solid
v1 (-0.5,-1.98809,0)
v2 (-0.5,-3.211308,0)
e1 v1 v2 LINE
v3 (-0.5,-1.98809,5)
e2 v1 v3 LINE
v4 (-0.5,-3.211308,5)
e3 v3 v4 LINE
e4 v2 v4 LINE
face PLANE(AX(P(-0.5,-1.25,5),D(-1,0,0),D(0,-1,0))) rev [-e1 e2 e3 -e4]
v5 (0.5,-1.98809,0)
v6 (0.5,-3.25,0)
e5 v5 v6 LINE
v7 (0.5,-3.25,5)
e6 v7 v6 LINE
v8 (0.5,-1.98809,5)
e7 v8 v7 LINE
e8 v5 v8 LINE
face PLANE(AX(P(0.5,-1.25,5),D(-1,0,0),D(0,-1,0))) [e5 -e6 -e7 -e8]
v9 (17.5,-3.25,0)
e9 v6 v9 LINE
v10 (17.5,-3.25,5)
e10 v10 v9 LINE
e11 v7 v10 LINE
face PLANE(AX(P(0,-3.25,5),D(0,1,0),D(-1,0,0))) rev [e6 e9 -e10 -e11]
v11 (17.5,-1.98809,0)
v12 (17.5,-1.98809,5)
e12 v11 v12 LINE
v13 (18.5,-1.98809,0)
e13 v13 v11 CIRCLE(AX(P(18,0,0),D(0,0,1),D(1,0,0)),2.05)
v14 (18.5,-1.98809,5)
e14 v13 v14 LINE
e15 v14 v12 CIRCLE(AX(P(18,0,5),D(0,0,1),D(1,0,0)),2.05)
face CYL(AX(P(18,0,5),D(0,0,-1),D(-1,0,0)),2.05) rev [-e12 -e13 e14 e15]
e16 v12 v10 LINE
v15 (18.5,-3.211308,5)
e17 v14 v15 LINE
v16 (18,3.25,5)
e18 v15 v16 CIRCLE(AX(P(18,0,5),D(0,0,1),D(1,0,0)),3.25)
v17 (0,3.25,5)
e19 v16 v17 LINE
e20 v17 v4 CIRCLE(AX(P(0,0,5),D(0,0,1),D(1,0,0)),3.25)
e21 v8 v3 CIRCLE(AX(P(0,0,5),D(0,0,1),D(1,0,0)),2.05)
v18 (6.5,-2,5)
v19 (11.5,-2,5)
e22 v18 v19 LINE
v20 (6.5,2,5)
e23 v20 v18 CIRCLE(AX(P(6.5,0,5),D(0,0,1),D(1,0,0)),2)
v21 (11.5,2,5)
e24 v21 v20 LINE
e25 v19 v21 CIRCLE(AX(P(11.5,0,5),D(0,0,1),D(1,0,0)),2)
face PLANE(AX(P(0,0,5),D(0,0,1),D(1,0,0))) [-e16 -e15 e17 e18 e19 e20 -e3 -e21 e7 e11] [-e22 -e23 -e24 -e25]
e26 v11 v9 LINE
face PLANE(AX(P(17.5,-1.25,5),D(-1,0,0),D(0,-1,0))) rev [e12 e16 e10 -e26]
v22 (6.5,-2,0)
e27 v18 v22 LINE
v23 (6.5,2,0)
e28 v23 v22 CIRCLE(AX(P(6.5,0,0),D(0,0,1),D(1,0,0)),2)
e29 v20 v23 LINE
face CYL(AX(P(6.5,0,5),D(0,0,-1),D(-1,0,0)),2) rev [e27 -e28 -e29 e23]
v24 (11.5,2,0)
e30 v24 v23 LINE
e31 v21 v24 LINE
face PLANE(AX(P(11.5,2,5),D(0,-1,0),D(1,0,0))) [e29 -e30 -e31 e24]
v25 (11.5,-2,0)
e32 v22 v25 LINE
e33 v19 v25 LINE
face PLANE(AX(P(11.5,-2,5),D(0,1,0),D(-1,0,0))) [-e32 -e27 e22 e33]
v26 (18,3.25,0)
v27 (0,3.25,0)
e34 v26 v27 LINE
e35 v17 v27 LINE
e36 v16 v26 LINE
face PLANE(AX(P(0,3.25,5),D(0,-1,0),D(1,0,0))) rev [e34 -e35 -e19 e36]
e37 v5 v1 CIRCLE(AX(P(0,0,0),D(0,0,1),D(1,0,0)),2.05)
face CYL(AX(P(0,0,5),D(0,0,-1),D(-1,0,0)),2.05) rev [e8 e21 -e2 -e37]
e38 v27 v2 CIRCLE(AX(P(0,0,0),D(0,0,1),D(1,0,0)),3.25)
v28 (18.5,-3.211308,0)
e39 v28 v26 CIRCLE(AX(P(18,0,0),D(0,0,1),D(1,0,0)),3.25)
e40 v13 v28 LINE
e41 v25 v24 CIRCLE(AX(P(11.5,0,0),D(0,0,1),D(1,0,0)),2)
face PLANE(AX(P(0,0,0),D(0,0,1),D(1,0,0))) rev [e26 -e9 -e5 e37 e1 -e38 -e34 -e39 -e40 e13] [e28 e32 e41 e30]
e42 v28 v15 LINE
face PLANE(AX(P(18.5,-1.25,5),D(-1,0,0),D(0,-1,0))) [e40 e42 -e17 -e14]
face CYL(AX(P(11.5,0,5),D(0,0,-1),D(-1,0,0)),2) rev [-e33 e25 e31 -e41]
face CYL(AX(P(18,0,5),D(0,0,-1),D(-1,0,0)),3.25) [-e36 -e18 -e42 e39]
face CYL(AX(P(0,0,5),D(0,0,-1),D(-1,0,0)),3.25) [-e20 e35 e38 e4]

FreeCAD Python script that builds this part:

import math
import FreeCAD as App
import Part
import Sketcher

V = App.Vector
Q = App.Units.Quantity


def add_polygon(sketch, points):
    """Adds a closed chain of lines whose ends are joined by coincident constraints."""
    first, n = sketch.GeometryCount, len(points)
    for a, b in zip(points, points[1:] + points[:1]):
        sketch.addGeometry(Part.LineSegment(App.Vector(*a, 0), App.Vector(*b, 0)), False)
    for i in range(n):
        sketch.addConstraint(Sketcher.Constraint("Coincident", first + i, 2, first + (i + 1) % n, 1))

doc = App.newDocument("Part")
params = doc.addObject("Spreadsheet::Sheet", "Params")
for row, (alias, value) in enumerate([
    ("sketch1_radius", "2 mm"),
    ("sketch1_diameter", "4.1 mm"),
    ("sketch1_width", "18 mm"),
    ("sketch1_width2", "5 mm"),
    ("sketch1_radius2", "3.25 mm"),
    ("pad1_length", "5 mm"),
    ("sketch2_width", "1 mm"),
    ("sketch2_height", "5 mm"),
    ("pocket1_length", "2 mm"),
], start=1):
    params.set(f"A{row}", alias)
    params.set(f"B{row}", "=" + value)
    params.setAlias(f"B{row}", alias)

body = doc.addObject("PartDesign::Body", "Body")

# Sketch on XY plane
sketch1 = body.newObject("Sketcher::SketchObject", "Sketch")
sketch1.AttachmentSupport = (doc.getObject("XY_Plane"), [""])
sketch1.MapMode = "FlatFace"
sketch1.addGeometry([
    Part.LineSegment(V(18, 3.25, 0), V(0, 3.25, 0)),  # 0
    Part.ArcOfCircle(Part.Circle(V(0, 0, 0), V(0, 0, 1), 3.25), math.radians(90), math.radians(270)),  # 1
    Part.LineSegment(V(0, -3.25, 0), V(18, -3.25, 0)),  # 2
    Part.ArcOfCircle(Part.Circle(V(18, 0, 0), V(0, 0, 1), 3.25), math.radians(-90), math.radians(90)),  # 3
    Part.Circle(V(18, 0, 0), V(0, 0, 1), 2.05),  # 4
    Part.LineSegment(V(11.5, -2, 0), V(6.5, -2, 0)),  # 5
    Part.ArcOfCircle(Part.Circle(V(6.5, 0, 0), V(0, 0, 1), 2), math.radians(90), math.radians(270)),  # 6
    Part.LineSegment(V(6.5, 2, 0), V(11.5, 2, 0)),  # 7
    Part.ArcOfCircle(Part.Circle(V(11.5, 0, 0), V(0, 0, 1), 2), math.radians(-90), math.radians(90)),  # 8
    Part.Circle(V(0, 0, 0), V(0, 0, 1), 2.05),  # 9
], False)
sketch1.addConstraint([
    Sketcher.Constraint("Tangent", 0, 2, 1, 1),
    Sketcher.Constraint("Tangent", 1, 2, 2, 1),
    Sketcher.Constraint("Tangent", 2, 2, 3, 1),
    Sketcher.Constraint("Tangent", 3, 2, 0, 1),
    Sketcher.Constraint("Tangent", 5, 2, 6, 2),
    Sketcher.Constraint("Tangent", 6, 1, 7, 1),
    Sketcher.Constraint("Tangent", 7, 2, 8, 2),
    Sketcher.Constraint("Tangent", 8, 1, 5, 1),
    Sketcher.Constraint("Horizontal", 0),
    Sketcher.Constraint("Horizontal", 2),
    Sketcher.Constraint("Horizontal", 5),
    Sketcher.Constraint("Horizontal", 7),
    Sketcher.Constraint("Coincident", 1, 3, -1, 1),
    Sketcher.Constraint("Coincident", 9, 3, -1, 1),
    Sketcher.Constraint("Coincident", 4, 3, 3, 3),
    Sketcher.Constraint("Equal", 4, 9),
    Sketcher.Constraint("PointOnObject", 6, 3, -1),
    Sketcher.Constraint("Radius", 6, Q("2 mm")),
    Sketcher.Constraint("Diameter", 4, Q("4.1 mm")),
    Sketcher.Constraint("DistanceX", 0, 2, 0, 1, Q("18 mm")),
    Sketcher.Constraint("DistanceX", 5, 2, 5, 1, Q("5 mm")),
    Sketcher.Constraint("Radius", 1, Q("3.25 mm")),
    Sketcher.Constraint("DistanceX", -1, 1, 6, 3, Q("6.5 mm")),
])
sketch1.setExpression("Constraints[17]", "Params.sketch1_radius")
sketch1.setExpression("Constraints[18]", "Params.sketch1_diameter")
sketch1.setExpression("Constraints[19]", "Params.sketch1_width")
sketch1.setExpression("Constraints[20]", "Params.sketch1_width2")
sketch1.setExpression("Constraints[21]", "Params.sketch1_radius2")
pad1 = body.newObject("PartDesign::Pad", "Pad")
pad1.Profile = sketch1
pad1.setExpression("Length", "Params.pad1_length")

# Sketch on XZ plane
sketch2 = body.newObject("Sketcher::SketchObject", "Sketch001")
sketch2.AttachmentSupport = (doc.getObject("XZ_Plane"), [""])
sketch2.MapMode = "FlatFace"
sketch2.AttachmentOffset = App.Placement(V(0, 0, 3.25), App.Rotation())
add_polygon(sketch2, [(0.5, 0), (0.5, 5), (-0.5, 5), (-0.5, 0)])  # lines 0-3
add_polygon(sketch2, [(18.5, 0), (18.5, 5), (17.5, 5), (17.5, 0)])  # lines 4-7
sketch2.addConstraint([
    Sketcher.Constraint("Vertical", 0),
    Sketcher.Constraint("Horizontal", 1),
    Sketcher.Constraint("Vertical", 2),
    Sketcher.Constraint("Horizontal", 3),
    Sketcher.Constraint("Vertical", 4),
    Sketcher.Constraint("Horizontal", 5),
    Sketcher.Constraint("Vertical", 6),
    Sketcher.Constraint("Horizontal", 7),
    Sketcher.Constraint("Symmetric", 2, 2, 3, 2, -1, 1),
    Sketcher.Constraint("PointOnObject", 6, 2, -1),
    Sketcher.Constraint("Horizontal", 1, 2, 4, 2),
    Sketcher.Constraint("Equal", 3, 5),
    Sketcher.Constraint("DistanceX", 1, 2, 1, 1, Q("1 mm")),
    Sketcher.Constraint("DistanceY", 0, 1, 0, 2, Q("5 mm")),
    Sketcher.Constraint("DistanceX", 0, 2, 4, 2, Q("18 mm")),
])
sketch2.setExpression("Constraints[20]", "Params.sketch2_width")
sketch2.setExpression("Constraints[21]", "Params.sketch2_height")
pocket1 = body.newObject("PartDesign::Pocket", "Pocket")
pocket1.Profile = sketch2
pocket1.setExpression("Length", "Params.pocket1_length")

doc.recompute()
